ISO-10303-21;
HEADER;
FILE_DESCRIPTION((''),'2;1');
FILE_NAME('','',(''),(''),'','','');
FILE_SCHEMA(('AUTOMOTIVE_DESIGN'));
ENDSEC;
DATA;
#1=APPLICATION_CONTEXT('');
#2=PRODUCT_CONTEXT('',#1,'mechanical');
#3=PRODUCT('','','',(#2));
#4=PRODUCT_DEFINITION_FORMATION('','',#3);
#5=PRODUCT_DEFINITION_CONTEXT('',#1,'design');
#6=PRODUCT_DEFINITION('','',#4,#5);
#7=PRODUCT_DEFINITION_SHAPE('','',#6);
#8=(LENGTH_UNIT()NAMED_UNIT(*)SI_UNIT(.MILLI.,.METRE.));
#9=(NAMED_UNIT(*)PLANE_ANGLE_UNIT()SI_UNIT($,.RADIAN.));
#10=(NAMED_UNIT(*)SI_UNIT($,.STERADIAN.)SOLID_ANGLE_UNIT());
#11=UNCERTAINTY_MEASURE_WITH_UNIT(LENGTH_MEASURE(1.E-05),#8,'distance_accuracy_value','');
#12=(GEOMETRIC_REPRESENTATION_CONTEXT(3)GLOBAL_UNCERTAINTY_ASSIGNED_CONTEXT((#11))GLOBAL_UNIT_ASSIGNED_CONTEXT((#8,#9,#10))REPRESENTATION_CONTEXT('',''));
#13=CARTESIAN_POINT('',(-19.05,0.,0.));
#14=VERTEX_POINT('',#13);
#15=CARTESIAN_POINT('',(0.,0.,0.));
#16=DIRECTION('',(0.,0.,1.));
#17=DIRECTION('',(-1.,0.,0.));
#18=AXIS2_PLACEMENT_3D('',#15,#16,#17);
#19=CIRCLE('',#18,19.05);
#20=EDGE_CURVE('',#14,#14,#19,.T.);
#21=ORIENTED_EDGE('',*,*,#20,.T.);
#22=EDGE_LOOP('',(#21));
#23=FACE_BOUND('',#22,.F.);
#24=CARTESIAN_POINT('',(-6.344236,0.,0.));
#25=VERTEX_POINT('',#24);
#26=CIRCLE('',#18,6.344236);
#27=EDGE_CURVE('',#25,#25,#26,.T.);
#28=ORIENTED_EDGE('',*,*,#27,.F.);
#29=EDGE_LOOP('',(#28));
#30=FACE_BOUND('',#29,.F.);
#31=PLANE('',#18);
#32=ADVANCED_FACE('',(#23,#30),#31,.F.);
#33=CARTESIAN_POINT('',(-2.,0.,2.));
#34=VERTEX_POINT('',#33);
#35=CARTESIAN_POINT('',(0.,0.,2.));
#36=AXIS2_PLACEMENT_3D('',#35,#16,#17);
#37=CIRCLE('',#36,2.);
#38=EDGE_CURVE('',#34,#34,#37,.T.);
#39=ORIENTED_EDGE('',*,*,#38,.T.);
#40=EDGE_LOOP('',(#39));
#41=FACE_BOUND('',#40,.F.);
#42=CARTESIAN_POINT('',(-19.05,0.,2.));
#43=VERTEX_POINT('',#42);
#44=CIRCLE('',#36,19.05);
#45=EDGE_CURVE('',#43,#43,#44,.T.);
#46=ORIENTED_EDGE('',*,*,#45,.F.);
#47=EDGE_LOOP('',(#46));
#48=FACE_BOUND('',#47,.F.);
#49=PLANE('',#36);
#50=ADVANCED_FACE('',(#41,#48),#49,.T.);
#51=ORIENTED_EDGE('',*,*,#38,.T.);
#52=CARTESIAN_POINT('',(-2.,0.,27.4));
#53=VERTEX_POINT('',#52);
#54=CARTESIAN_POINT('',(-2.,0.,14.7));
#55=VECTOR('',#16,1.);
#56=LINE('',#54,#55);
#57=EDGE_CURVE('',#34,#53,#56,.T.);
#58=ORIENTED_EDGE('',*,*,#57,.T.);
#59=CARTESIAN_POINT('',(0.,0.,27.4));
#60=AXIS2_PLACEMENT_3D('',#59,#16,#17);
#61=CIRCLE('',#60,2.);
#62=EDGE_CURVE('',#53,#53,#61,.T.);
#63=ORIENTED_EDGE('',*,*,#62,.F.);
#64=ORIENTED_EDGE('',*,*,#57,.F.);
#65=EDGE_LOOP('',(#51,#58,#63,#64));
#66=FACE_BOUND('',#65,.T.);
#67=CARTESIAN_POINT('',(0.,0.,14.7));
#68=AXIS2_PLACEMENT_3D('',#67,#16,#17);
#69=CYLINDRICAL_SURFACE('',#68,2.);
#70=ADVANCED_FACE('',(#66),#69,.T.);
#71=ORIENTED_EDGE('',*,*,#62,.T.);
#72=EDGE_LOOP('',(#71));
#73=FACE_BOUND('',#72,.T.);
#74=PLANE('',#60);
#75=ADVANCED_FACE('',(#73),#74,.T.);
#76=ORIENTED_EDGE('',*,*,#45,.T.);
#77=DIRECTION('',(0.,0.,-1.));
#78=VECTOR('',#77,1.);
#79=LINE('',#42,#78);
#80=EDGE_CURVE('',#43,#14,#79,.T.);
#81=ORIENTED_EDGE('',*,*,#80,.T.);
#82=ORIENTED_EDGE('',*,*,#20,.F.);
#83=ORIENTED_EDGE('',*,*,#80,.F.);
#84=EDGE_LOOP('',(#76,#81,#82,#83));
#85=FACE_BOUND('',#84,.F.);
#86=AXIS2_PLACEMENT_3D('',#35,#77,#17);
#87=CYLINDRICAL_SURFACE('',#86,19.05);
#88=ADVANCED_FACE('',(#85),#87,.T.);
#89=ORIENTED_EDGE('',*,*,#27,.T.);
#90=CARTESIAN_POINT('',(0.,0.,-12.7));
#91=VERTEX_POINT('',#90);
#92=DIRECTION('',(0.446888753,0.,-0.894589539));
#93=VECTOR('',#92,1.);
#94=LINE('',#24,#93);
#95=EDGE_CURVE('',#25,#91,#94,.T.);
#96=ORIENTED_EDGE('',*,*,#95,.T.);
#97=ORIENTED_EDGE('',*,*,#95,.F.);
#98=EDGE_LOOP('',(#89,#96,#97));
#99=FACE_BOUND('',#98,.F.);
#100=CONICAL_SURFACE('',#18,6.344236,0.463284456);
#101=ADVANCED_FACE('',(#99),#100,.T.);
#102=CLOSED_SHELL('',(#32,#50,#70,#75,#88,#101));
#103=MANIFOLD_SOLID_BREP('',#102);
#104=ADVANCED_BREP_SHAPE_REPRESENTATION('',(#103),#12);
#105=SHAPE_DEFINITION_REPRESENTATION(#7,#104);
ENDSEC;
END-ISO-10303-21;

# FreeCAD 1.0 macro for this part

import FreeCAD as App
import Part
import Sketcher
Q = App.Units.Quantity


def add_polygon(sketch, points):
    """Adds a closed chain of lines whose ends are joined by coincident constraints."""
    first, n = sketch.GeometryCount, len(points)
    for a, b in zip(points, points[1:] + points[:1]):
        sketch.addGeometry(Part.LineSegment(App.Vector(*a, 0), App.Vector(*b, 0)), False)
    for i in range(n):
        sketch.addConstraint(Sketcher.Constraint("Coincident", first + i, 2, first + (i + 1) % n, 1))

doc = App.newDocument("Part")
body = doc.addObject("PartDesign::Body", "Body")

# Sketch on XZ plane
sketch1 = body.newObject("Sketcher::SketchObject", "Sketch")
sketch1.AttachmentSupport = (doc.getObject("XZ_Plane"), [""])
sketch1.MapMode = "FlatFace"
add_polygon(sketch1, [(0, -12.7), (0, 27.4), (-2, 27.4), (-2, 2), (-19.1, 2), (-19.1, 0), (-6.3, 0)])  # lines 0-6
sketch1.addConstraint(Sketcher.Constraint("Vertical", 0))
sketch1.addConstraint(Sketcher.Constraint("Horizontal", 1))
sketch1.addConstraint(Sketcher.Constraint("Vertical", 2))
sketch1.addConstraint(Sketcher.Constraint("Horizontal", 3))
sketch1.addConstraint(Sketcher.Constraint("Vertical", 4))
sketch1.addConstraint(Sketcher.Constraint("Horizontal", 5))
sketch1.addConstraint(Sketcher.Constraint("PointOnObject", 0, 2, -2))
sketch1.addConstraint(Sketcher.Constraint("PointOnObject", 4, 2, -1))
sketch1.addConstraint(Sketcher.Constraint("Equal", 1, 4))
sketch1.addConstraint(Sketcher.Constraint("DistanceX", 1, 2, 1, 1, Q("2 mm")))
sketch1.addConstraint(Sketcher.Constraint("DistanceY", 0, 1, 0, 2, Q("40.1 mm")))
sketch1.addConstraint(Sketcher.Constraint("DistanceY", 2, 2, 2, 1, Q("25.4 mm")))
sketch1.addConstraint(Sketcher.Constraint("DistanceX", 3, 2, 3, 1, Q("17.05 mm")))
sketch1.addConstraint(Sketcher.Constraint("DistanceX", 5, 1, 5, 2, Q("12.705764 mm")))
revolution = body.newObject("PartDesign::Revolution", "Revolution")
revolution.Profile = sketch1
revolution.ReferenceAxis = (sketch1, ["V_Axis"])
revolution.Angle = 360

doc.recompute()
